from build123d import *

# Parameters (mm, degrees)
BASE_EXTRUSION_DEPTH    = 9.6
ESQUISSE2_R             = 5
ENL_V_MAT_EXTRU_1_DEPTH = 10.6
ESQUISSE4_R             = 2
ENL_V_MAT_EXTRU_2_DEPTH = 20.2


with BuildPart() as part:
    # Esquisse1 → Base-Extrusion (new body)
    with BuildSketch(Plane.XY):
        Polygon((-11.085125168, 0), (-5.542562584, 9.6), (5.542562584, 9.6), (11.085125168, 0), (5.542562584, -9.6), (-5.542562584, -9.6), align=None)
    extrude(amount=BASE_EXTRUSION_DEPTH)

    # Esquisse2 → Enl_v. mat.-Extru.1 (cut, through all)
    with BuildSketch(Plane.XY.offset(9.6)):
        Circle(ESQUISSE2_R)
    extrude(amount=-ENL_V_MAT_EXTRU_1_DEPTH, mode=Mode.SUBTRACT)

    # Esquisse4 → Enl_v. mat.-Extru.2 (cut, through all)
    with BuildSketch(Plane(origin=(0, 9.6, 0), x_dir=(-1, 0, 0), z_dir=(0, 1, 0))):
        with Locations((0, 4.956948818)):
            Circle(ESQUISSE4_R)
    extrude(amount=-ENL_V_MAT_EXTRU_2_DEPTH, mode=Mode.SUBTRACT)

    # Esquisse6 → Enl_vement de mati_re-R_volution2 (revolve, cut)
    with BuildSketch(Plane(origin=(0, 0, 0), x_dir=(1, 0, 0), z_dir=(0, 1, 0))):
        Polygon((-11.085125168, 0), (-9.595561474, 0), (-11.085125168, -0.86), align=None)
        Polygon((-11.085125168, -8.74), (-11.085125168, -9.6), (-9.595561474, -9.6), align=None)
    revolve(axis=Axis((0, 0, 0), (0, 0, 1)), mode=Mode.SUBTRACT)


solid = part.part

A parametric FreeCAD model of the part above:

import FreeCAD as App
import Part
import Sketcher
from FreeCAD import Vector
Q = App.Units.Quantity


def add_polygon(sketch, points):
    """Adds a closed chain of lines whose ends are joined by coincident constraints."""
    first, n = sketch.GeometryCount, len(points)
    for a, b in zip(points, points[1:] + points[:1]):
        sketch.addGeometry(Part.LineSegment(App.Vector(*a, 0), App.Vector(*b, 0)), False)
    for i in range(n):
        sketch.addConstraint(Sketcher.Constraint("Coincident", first + i, 2, first + (i + 1) % n, 1))

doc = App.newDocument("Part")
params = doc.addObject("Spreadsheet::Sheet", "Params")
for row, (alias, value) in enumerate([
    ("pad1_length", "9.6 mm"),
    ("sketch2_diameter", "10 mm"),
    ("sketch3_diameter", "4 mm"),
    ("sketch4_height", "0.86 mm"),
    ("groove_angle", "360 deg"),
], start=1):
    params.set(f"A{row}", alias)
    params.set(f"B{row}", "=" + value)
    params.setAlias(f"B{row}", alias)

body = doc.addObject("PartDesign::Body", "Body")

# Sketch on XY plane
sketch1 = body.newObject("Sketcher::SketchObject", "Sketch")
sketch1.AttachmentSupport = (doc.getObject("XY_Plane"), [""])
sketch1.MapMode = "FlatFace"
add_polygon(sketch1, [(-6, 10), (-11, 0), (-6, -10), (6, -10), (11, 0), (6, 10)])  # lines 0-5
sketch1.addConstraint(Sketcher.Constraint("Horizontal", 2))
sketch1.addConstraint(Sketcher.Constraint("Horizontal", 5))
sketch1.addConstraint(Sketcher.Constraint("Symmetric", 0, 2, 3, 2, -1, 1))
sketch1.addConstraint(Sketcher.Constraint("Symmetric", 1, 2, 4, 2, -1, 1))
sketch1.addConstraint(Sketcher.Constraint("PointOnObject", 0, 2, -1))
sketch1.addConstraint(Sketcher.Constraint("Parallel", 0, 3))
sketch1.addConstraint(Sketcher.Constraint("Vertical", 2, 2, 4, 2))
sketch1.addConstraint(Sketcher.Constraint("Angle", 0, Q("-120 deg")))
sketch1.addConstraint(Sketcher.Constraint("DistanceY", 1, 2, -1, 1, Q("9.6 mm")))
sketch1.addConstraint(Sketcher.Constraint("DistanceX", 2, 1, 2, 2, Q("11.085125 mm")))
pad1 = body.newObject("PartDesign::Pad", "Pad")
pad1.Profile = sketch1
pad1.setExpression("Length", "Params.pad1_length")

# Sketch on XY plane
sketch2 = body.newObject("Sketcher::SketchObject", "Sketch001")
sketch2.AttachmentSupport = (doc.getObject("XY_Plane"), [""])
sketch2.MapMode = "FlatFace"
sketch2.AttachmentOffset = App.Placement(Vector(0, 0, 9.6), App.Rotation())
sketch2.addGeometry(Part.Circle(Vector(0, 0, 0), Vector(0, 0, 1), 5), False)
sketch2.addConstraint(Sketcher.Constraint("Coincident", 0, 3, -1, 1))
sketch2.addConstraint(Sketcher.Constraint("Diameter", 0, Q("10 mm")))
sketch2.setExpression("Constraints[1]", "Params.sketch2_diameter")
pocket1 = body.newObject("PartDesign::Pocket", "Pocket")
pocket1.Profile = sketch2
pocket1.Type = "ThroughAll"

# Sketch on XZ plane
sketch3 = body.newObject("Sketcher::SketchObject", "Sketch002")
sketch3.AttachmentSupport = (doc.getObject("XZ_Plane"), [""])
sketch3.MapMode = "FlatFace"
sketch3.AttachmentOffset = App.Placement(Vector(0, 0, -9.6), App.Rotation())
sketch3.addGeometry(Part.Circle(Vector(0, 5, 0), Vector(0, 0, 1), 2), False)
sketch3.addConstraint(Sketcher.Constraint("PointOnObject", 0, 3, -2))
sketch3.addConstraint(Sketcher.Constraint("Diameter", 0, Q("4 mm")))
sketch3.addConstraint(Sketcher.Constraint("DistanceY", -1, 1, 0, 3, Q("4.956949 mm")))
sketch3.setExpression("Constraints[1]", "Params.sketch3_diameter")
pocket2 = body.newObject("PartDesign::Pocket", "Pocket001")
pocket2.Profile = sketch3
pocket2.Type = "ThroughAll"
pocket2.Reversed = True

# Sketch on XZ plane
sketch4 = body.newObject("Sketcher::SketchObject", "Sketch003")
sketch4.AttachmentSupport = (doc.getObject("XZ_Plane"), [""])
sketch4.MapMode = "FlatFace"
add_polygon(sketch4, [(-9.6, 0), (-11.1, 0), (-11.1, 0.9)])  # lines 0-2
add_polygon(sketch4, [(-11.1, 8.7), (-11.1, 9.6), (-9.6, 9.6)])  # lines 3-5
sketch4.addConstraint(Sketcher.Constraint("Horizontal", 0))
sketch4.addConstraint(Sketcher.Constraint("Vertical", 1))
sketch4.addConstraint(Sketcher.Constraint("Vertical", 3))
sketch4.addConstraint(Sketcher.Constraint("Horizontal", 4))
sketch4.addConstraint(Sketcher.Constraint("PointOnObject", 0, 2, -1))
sketch4.addConstraint(Sketcher.Constraint("Vertical", 1, 2, 3, 2))
sketch4.addConstraint(Sketcher.Constraint("Vertical", 2, 2, 4, 2))
sketch4.addConstraint(Sketcher.Constraint("Equal", 1, 3))
sketch4.addConstraint(Sketcher.Constraint("Angle", 2, Q("-30 deg")))
sketch4.addConstraint(Sketcher.Constraint("DistanceY", 1, 1, 1, 2, Q("0.86 mm")))
sketch4.addConstraint(Sketcher.Constraint("DistanceY", -1, 1, 3, 2, Q("9.6 mm")))
sketch4.addConstraint(Sketcher.Constraint("DistanceX", 2, 2, -1, 1, Q("9.595561 mm")))
sketch4.setExpression("Constraints[15]", "Params.sketch4_height")
groove = body.newObject("PartDesign::Groove", "Groove")
groove.Profile = sketch4
groove.ReferenceAxis = (sketch4, ["V_Axis"])
groove.setExpression("Angle", "Params.groove_angle")

doc.recompute()
